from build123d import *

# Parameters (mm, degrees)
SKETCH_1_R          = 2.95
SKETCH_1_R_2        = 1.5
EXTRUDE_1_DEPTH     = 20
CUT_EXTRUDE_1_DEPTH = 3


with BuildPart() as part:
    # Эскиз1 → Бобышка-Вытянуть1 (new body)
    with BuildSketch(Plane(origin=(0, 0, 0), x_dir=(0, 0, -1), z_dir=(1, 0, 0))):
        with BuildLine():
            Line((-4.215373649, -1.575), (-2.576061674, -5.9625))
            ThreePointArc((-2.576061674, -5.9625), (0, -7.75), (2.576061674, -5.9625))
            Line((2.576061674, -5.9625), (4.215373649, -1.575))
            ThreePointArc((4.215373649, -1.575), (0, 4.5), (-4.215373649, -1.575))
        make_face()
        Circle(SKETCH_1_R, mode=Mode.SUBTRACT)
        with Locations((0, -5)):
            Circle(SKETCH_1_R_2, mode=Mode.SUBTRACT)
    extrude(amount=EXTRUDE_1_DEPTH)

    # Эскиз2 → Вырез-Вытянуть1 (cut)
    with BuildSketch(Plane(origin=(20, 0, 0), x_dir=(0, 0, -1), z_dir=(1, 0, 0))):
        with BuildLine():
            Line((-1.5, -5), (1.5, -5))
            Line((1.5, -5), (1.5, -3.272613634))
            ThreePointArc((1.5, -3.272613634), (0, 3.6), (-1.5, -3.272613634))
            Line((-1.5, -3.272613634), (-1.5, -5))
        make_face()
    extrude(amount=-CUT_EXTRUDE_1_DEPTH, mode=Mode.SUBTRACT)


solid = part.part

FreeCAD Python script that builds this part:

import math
import FreeCAD as App
import Part
import Sketcher
from FreeCAD import Vector

doc = App.newDocument("Part")
body = doc.addObject("PartDesign::Body", "Body")

sketch1 = body.newObject("Sketcher::SketchObject", "Sketch")
sketch1.AttachmentSupport = (doc.getObject("YZ_Plane"), [""])
sketch1.MapMode = "FlatFace"
sketch1.addGeometry(Part.LineSegment(Vector(-1.6, 4.2, 0), Vector(-6, 2.6, 0)), False)
sketch1.addGeometry(Part.ArcOfCircle(Part.Circle(Vector(-5, 0, 0), Vector(0, 0, 1), 2.8), math.radians(110), math.radians(250)), False)
sketch1.addGeometry(Part.LineSegment(Vector(-6, -2.6, 0), Vector(-1.6, -4.2, 0)), False)
sketch1.addGeometry(Part.ArcOfCircle(Part.Circle(Vector(0, 0, 0), Vector(0, 0, 1), 4.5), math.radians(-110), math.radians(110)), False)
sketch1.addGeometry(Part.Circle(Vector(-5, 0, 0), Vector(0, 0, 1), 1.5), False)
sketch1.addGeometry(Part.Circle(Vector(0, 0, 0), Vector(0, 0, 1), 3), False)
sketch1.addConstraint(Sketcher.Constraint("Tangent", 0, 2, 1, 1))
sketch1.addConstraint(Sketcher.Constraint("Tangent", 1, 2, 2, 1))
sketch1.addConstraint(Sketcher.Constraint("Tangent", 2, 2, 3, 1))
sketch1.addConstraint(Sketcher.Constraint("Tangent", 3, 2, 0, 1))
sketch1.addConstraint(Sketcher.Constraint("Coincident", 3, 3, -1, 1))
sketch1.addConstraint(Sketcher.Constraint("Coincident", 5, 3, -1, 1))
sketch1.addConstraint(Sketcher.Constraint("Coincident", 4, 3, 1, 3))
sketch1.addConstraint(Sketcher.Constraint("PointOnObject", 1, 3, -1))
sketch1.addConstraint(Sketcher.Constraint("Diameter", 4, 3.0))
sketch1.addConstraint(Sketcher.Constraint("Diameter", 5, 5.9))
sketch1.addConstraint(Sketcher.Constraint("Radius", 3, 4.5))
sketch1.addConstraint(Sketcher.Constraint("Radius", 1, 2.75))
sketch1.addConstraint(Sketcher.Constraint("DistanceX", 1, 3, -1, 1, 5.0))
pad1 = body.newObject("PartDesign::Pad", "Pad")
pad1.Profile = sketch1
pad1.Length = 20

sketch2 = body.newObject("Sketcher::SketchObject", "Sketch001")
sketch2.AttachmentSupport = (doc.getObject("YZ_Plane"), [""])
sketch2.MapMode = "FlatFace"
sketch2.AttachmentOffset = App.Placement(Vector(0, 0, 20), App.Rotation())
sketch2.addGeometry(Part.LineSegment(Vector(-5, 1.5, 0), Vector(-5, -1.5, 0)), False)
sketch2.addGeometry(Part.LineSegment(Vector(-5, -1.5, 0), Vector(-3.3, -1.5, 0)), False)
sketch2.addGeometry(Part.ArcOfCircle(Part.Circle(Vector(0, 0, 0), Vector(0, 0, 1), 3.6), math.radians(-155), math.radians(155)), False)
sketch2.addGeometry(Part.LineSegment(Vector(-3.3, 1.5, 0), Vector(-5, 1.5, 0)), False)
sketch2.addConstraint(Sketcher.Constraint("Coincident", 0, 2, 1, 1))
sketch2.addConstraint(Sketcher.Constraint("Coincident", 1, 2, 2, 1))
sketch2.addConstraint(Sketcher.Constraint("Coincident", 2, 2, 3, 1))
sketch2.addConstraint(Sketcher.Constraint("Coincident", 3, 2, 0, 1))
sketch2.addConstraint(Sketcher.Constraint("Vertical", 0))
sketch2.addConstraint(Sketcher.Constraint("Horizontal", 1))
sketch2.addConstraint(Sketcher.Constraint("Horizontal", 3))
sketch2.addConstraint(Sketcher.Constraint("Coincident", 2, 3, -1, 1))
sketch2.addConstraint(Sketcher.Constraint("Vertical", 1, 2, 2, 2))
sketch2.addConstraint(Sketcher.Constraint("Radius", 2, 3.6))
sketch2.addConstraint(Sketcher.Constraint("DistanceY", 0, 2, 0, 1, 3.0))
sketch2.addConstraint(Sketcher.Constraint("DistanceX", 0, 2, -1, 1, 5.0))
pocket1 = body.newObject("PartDesign::Pocket", "Pocket")
pocket1.Profile = sketch2
pocket1.Length = 3

doc.recompute()
